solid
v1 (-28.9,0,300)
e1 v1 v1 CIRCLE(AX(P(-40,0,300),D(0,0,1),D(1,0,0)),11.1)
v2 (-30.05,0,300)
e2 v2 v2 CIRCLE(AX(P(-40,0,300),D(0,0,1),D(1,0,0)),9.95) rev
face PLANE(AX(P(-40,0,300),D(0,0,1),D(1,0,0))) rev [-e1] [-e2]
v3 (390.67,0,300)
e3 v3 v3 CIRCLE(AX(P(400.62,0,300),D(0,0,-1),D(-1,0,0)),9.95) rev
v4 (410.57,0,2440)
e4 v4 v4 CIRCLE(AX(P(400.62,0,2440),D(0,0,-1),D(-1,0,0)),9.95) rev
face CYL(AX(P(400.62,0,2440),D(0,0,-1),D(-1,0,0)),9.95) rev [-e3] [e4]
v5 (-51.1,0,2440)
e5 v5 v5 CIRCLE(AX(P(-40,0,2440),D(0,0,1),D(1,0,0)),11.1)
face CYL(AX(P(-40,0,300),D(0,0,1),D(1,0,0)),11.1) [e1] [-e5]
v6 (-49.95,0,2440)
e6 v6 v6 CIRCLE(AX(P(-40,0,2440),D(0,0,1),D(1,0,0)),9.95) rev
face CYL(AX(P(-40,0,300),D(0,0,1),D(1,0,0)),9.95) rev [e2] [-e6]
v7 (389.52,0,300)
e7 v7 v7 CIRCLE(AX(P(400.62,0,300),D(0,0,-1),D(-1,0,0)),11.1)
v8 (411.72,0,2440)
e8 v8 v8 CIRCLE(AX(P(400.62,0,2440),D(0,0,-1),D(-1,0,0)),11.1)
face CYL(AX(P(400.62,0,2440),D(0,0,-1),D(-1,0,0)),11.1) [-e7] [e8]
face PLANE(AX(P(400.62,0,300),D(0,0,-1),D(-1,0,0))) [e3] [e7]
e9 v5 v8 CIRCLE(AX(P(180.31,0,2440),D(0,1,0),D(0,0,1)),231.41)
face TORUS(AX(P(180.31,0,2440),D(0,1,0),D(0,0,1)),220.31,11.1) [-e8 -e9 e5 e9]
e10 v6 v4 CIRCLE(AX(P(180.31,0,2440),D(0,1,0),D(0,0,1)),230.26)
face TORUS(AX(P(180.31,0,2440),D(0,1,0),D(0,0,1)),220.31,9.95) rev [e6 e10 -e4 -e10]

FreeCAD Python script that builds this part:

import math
import FreeCAD as App
import Part
import Sketcher

V = App.Vector

doc = App.newDocument("Part")
body = doc.addObject("PartDesign::Body", "Body")

# Sketch on XY plane
sketch1 = body.newObject("Sketcher::SketchObject", "Sketch")
sketch1.AttachmentSupport = (doc.getObject("XY_Plane"), [""])
sketch1.MapMode = "FlatFace"
sketch1.AttachmentOffset = App.Placement(V(0, 0, 300), App.Rotation())
sketch1.addGeometry([
    Part.Circle(V(401, 0, 0), V(0, 0, 1), 11),
    Part.Circle(V(401, 0, 0), V(0, 0, 1), 10),
], False)
sketch1.addConstraint([
    Sketcher.Constraint("Coincident", 1, 3, 0, 3),
    Sketcher.Constraint("PointOnObject", 0, 3, -1),
    Sketcher.Constraint("Diameter", 0, 22.2),
    Sketcher.Constraint("Diameter", 1, 19.9),
    Sketcher.Constraint("DistanceX", -1, 1, 0, 3, 400.62),
])

# Sketch on XZ plane
sketch2 = body.newObject("Sketcher::SketchObject", "Sketch001")
sketch2.AttachmentSupport = (doc.getObject("XZ_Plane"), [""])
sketch2.MapMode = "FlatFace"
sketch2.addGeometry([
    Part.LineSegment(V(401, 300, 0), V(401, 2440, 0)),
    Part.ArcOfCircle(Part.Circle(V(180, 2440, 0), V(0, 0, 1), 220), math.radians(0), math.radians(180)),
    Part.LineSegment(V(-40, 2440, 0), V(-40, 300, 0)),
], False)
sketch2.addConstraint([
    Sketcher.Constraint("Tangent", 0, 2, 1, 1),
    Sketcher.Constraint("Tangent", 1, 2, 2, 1),
    Sketcher.Constraint("Vertical", 0),
    Sketcher.Constraint("Vertical", 2),
    Sketcher.Constraint("Horizontal", 0, 1, 2, 2),
    Sketcher.Constraint("DistanceY", 0, 1, 0, 2, 2140.0),
    Sketcher.Constraint("Radius", 1, 220.31),
    Sketcher.Constraint("DistanceY", -1, 1, 1, 3, 2440.0),
    Sketcher.Constraint("DistanceX", 1, 2, -1, 1, 40.0),
])
doc.recompute()

additivepipe = body.newObject("PartDesign::AdditivePipe", "AdditivePipe")
additivepipe.Profile = sketch1
additivepipe.Spine = (sketch2, ["Edge1", "Edge2", "Edge3"])

doc.recompute()
